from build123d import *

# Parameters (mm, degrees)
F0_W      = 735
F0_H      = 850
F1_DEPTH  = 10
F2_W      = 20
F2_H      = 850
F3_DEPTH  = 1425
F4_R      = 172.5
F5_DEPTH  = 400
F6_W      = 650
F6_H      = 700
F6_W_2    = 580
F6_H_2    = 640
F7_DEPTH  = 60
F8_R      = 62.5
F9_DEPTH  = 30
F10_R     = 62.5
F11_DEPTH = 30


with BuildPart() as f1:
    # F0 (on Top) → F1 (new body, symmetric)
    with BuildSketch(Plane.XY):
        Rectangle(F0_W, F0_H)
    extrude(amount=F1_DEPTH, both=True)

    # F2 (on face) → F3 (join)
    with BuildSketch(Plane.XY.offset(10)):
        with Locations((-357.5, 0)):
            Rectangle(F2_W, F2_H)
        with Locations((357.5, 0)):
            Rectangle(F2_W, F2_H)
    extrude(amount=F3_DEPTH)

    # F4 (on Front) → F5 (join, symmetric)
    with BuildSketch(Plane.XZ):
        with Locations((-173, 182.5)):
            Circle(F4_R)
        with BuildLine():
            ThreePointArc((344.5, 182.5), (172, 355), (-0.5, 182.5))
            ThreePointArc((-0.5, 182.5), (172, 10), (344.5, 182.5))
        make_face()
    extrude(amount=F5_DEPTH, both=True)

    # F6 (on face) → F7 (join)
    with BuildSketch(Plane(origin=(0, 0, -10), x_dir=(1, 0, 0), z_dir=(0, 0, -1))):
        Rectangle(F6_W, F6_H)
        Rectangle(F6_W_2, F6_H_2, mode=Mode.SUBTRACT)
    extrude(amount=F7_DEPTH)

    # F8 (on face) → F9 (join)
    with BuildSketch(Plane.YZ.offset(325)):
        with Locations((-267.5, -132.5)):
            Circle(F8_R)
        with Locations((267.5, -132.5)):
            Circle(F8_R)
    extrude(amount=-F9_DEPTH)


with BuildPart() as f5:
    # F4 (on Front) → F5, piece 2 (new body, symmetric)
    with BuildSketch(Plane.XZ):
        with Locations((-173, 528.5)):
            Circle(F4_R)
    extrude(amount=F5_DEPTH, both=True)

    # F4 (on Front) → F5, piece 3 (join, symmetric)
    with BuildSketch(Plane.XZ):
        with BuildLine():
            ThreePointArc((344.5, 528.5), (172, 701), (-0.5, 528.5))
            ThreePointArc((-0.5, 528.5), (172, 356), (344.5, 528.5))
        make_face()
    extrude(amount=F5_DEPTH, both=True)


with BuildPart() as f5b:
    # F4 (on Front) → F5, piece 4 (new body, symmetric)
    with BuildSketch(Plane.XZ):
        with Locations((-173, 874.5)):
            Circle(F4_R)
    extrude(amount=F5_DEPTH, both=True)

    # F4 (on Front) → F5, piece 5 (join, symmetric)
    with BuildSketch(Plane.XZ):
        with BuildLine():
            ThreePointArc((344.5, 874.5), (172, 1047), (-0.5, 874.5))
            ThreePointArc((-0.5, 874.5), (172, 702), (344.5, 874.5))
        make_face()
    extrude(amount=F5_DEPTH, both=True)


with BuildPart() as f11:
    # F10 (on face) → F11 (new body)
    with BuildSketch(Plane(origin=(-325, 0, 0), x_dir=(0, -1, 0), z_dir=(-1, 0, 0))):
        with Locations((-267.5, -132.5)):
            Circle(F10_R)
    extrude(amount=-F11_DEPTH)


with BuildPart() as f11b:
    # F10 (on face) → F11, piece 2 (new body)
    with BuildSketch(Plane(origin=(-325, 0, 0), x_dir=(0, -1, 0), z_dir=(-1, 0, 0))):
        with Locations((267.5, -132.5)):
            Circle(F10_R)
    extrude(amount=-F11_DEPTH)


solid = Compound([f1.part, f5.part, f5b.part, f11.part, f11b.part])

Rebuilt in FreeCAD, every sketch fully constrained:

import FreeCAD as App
import Part
import Sketcher
from FreeCAD import Vector
Q = App.Units.Quantity

doc = App.newDocument("Part")
body = doc.addObject("PartDesign::Body", "Body")
body.AllowCompound = True

# Sketch on XY plane
sketch1 = body.newObject("Sketcher::SketchObject", "Sketch")
sketch1.AttachmentSupport = (doc.getObject("XY_Plane"), [""])
sketch1.MapMode = "FlatFace"
sketch1.addGeometry([
    Part.LineSegment(Vector(-368, 425, 0), Vector(-368, -425, 0)),
    Part.LineSegment(Vector(-368, -425, 0), Vector(368, -425, 0)),
    Part.LineSegment(Vector(368, -425, 0), Vector(368, 425, 0)),
    Part.LineSegment(Vector(368, 425, 0), Vector(-368, 425, 0)),
], False)
sketch1.addConstraint([
    Sketcher.Constraint("Coincident", 0, 2, 1, 1),
    Sketcher.Constraint("Coincident", 1, 2, 2, 1),
    Sketcher.Constraint("Coincident", 2, 2, 3, 1),
    Sketcher.Constraint("Coincident", 3, 2, 0, 1),
    Sketcher.Constraint("Vertical", 0),
    Sketcher.Constraint("Horizontal", 1),
    Sketcher.Constraint("Vertical", 2),
    Sketcher.Constraint("Horizontal", 3),
    Sketcher.Constraint("Symmetric", 0, 2, 2, 2, -1, 1),
    Sketcher.Constraint("DistanceX", 1, 1, 1, 2, Q("735 mm")),
    Sketcher.Constraint("DistanceY", 0, 2, 0, 1, Q("850 mm")),
])
pad1 = body.newObject("PartDesign::Pad", "Pad")
pad1.Profile = sketch1
pad1.Length = 20
pad1.Midplane = True

# Sketch on XY plane
sketch2 = body.newObject("Sketcher::SketchObject", "Sketch001")
sketch2.AttachmentSupport = (doc.getObject("XY_Plane"), [""])
sketch2.MapMode = "FlatFace"
sketch2.AttachmentOffset = App.Placement(Vector(0, 0, 10), App.Rotation())
sketch2.addGeometry([
    Part.LineSegment(Vector(-368, 425, 0), Vector(-368, -425, 0)),  # 0
    Part.LineSegment(Vector(-368, -425, 0), Vector(-348, -425, 0)),  # 1
    Part.LineSegment(Vector(-348, -425, 0), Vector(-348, 425, 0)),  # 2
    Part.LineSegment(Vector(-348, 425, 0), Vector(-368, 425, 0)),  # 3
    Part.LineSegment(Vector(348, 425, 0), Vector(348, -425, 0)),  # 4
    Part.LineSegment(Vector(348, -425, 0), Vector(368, -425, 0)),  # 5
    Part.LineSegment(Vector(368, -425, 0), Vector(368, 425, 0)),  # 6
    Part.LineSegment(Vector(368, 425, 0), Vector(348, 425, 0)),  # 7
], False)
sketch2.addConstraint([
    Sketcher.Constraint("Coincident", 0, 2, 1, 1),
    Sketcher.Constraint("Coincident", 1, 2, 2, 1),
    Sketcher.Constraint("Coincident", 2, 2, 3, 1),
    Sketcher.Constraint("Coincident", 3, 2, 0, 1),
    Sketcher.Constraint("Coincident", 4, 2, 5, 1),
    Sketcher.Constraint("Coincident", 5, 2, 6, 1),
    Sketcher.Constraint("Coincident", 6, 2, 7, 1),
    Sketcher.Constraint("Coincident", 7, 2, 4, 1),
    Sketcher.Constraint("Vertical", 0),
    Sketcher.Constraint("Horizontal", 1),
    Sketcher.Constraint("Vertical", 2),
    Sketcher.Constraint("Horizontal", 3),
    Sketcher.Constraint("Vertical", 4),
    Sketcher.Constraint("Horizontal", 5),
    Sketcher.Constraint("Vertical", 6),
    Sketcher.Constraint("Horizontal", 7),
    Sketcher.Constraint("Symmetric", 2, 2, 4, 2, -1, 1),
    Sketcher.Constraint("Symmetric", 0, 2, 6, 2, -1, 1),
    Sketcher.Constraint("Horizontal", 1, 2, 4, 2),
    Sketcher.Constraint("DistanceX", 1, 1, 1, 2, Q("20 mm")),
    Sketcher.Constraint("DistanceY", 0, 2, 0, 1, Q("850 mm")),
    Sketcher.Constraint("DistanceX", 1, 2, 4, 2, Q("695 mm")),
])
pad2 = body.newObject("PartDesign::Pad", "Pad001")
pad2.Profile = sketch2
pad2.Length = 1425

# Sketch on XZ plane
sketch3 = body.newObject("Sketcher::SketchObject", "Sketch002")
sketch3.AttachmentSupport = (doc.getObject("XZ_Plane"), [""])
sketch3.MapMode = "FlatFace"
sketch3.addGeometry([
    Part.Circle(Vector(-173, 182, 0), Vector(0, 0, 1), 172),
    Part.Circle(Vector(172, 182, 0), Vector(0, 0, 1), 172),
], False)
sketch3.addConstraint([
    Sketcher.Constraint("Equal", 0, 1),
    Sketcher.Constraint("Horizontal", 0, 3, 1, 3),
    Sketcher.Constraint("Diameter", 0, Q("345 mm")),
    Sketcher.Constraint("DistanceX", 0, 3, -1, 1, Q("173 mm")),
    Sketcher.Constraint("DistanceX", -1, 1, 1, 3, Q("172 mm")),
    Sketcher.Constraint("DistanceY", -1, 1, 0, 3, Q("182.5 mm")),
])
pad3 = body.newObject("PartDesign::Pad", "Pad002")
pad3.Profile = sketch3
pad3.Length = 800
pad3.Midplane = True

# Sketch on XY plane
sketch4 = body.newObject("Sketcher::SketchObject", "Sketch003")
sketch4.AttachmentSupport = (doc.getObject("XY_Plane"), [""])
sketch4.MapMode = "FlatFace"
sketch4.AttachmentOffset = App.Placement(Vector(0, 0, -10), App.Rotation())
sketch4.addGeometry([
    Part.LineSegment(Vector(-325, -350, 0), Vector(-325, 350, 0)),  # 0
    Part.LineSegment(Vector(-325, 350, 0), Vector(325, 350, 0)),  # 1
    Part.LineSegment(Vector(325, 350, 0), Vector(325, -350, 0)),  # 2
    Part.LineSegment(Vector(325, -350, 0), Vector(-325, -350, 0)),  # 3
    Part.LineSegment(Vector(290, 320, 0), Vector(-290, 320, 0)),  # 4
    Part.LineSegment(Vector(-290, 320, 0), Vector(-290, -320, 0)),  # 5
    Part.LineSegment(Vector(-290, -320, 0), Vector(290, -320, 0)),  # 6
    Part.LineSegment(Vector(290, -320, 0), Vector(290, 320, 0)),  # 7
], False)
sketch4.addConstraint([
    Sketcher.Constraint("Coincident", 0, 2, 1, 1),
    Sketcher.Constraint("Coincident", 1, 2, 2, 1),
    Sketcher.Constraint("Coincident", 2, 2, 3, 1),
    Sketcher.Constraint("Coincident", 3, 2, 0, 1),
    Sketcher.Constraint("Coincident", 4, 2, 5, 1),
    Sketcher.Constraint("Coincident", 5, 2, 6, 1),
    Sketcher.Constraint("Coincident", 6, 2, 7, 1),
    Sketcher.Constraint("Coincident", 7, 2, 4, 1),
    Sketcher.Constraint("Vertical", 0),
    Sketcher.Constraint("Horizontal", 1),
    Sketcher.Constraint("Vertical", 2),
    Sketcher.Constraint("Horizontal", 3),
    Sketcher.Constraint("Horizontal", 4),
    Sketcher.Constraint("Vertical", 5),
    Sketcher.Constraint("Horizontal", 6),
    Sketcher.Constraint("Vertical", 7),
    Sketcher.Constraint("Symmetric", 0, 2, 2, 2, -1, 1),
    Sketcher.Constraint("Symmetric", 4, 2, 6, 2, -1, 1),
    Sketcher.Constraint("DistanceX", 1, 1, 1, 2, Q("650 mm")),
    Sketcher.Constraint("DistanceX", 4, 2, 4, 1, Q("580 mm")),
    Sketcher.Constraint("DistanceY", 0, 1, 0, 2, Q("700 mm")),
    Sketcher.Constraint("DistanceY", 5, 2, 5, 1, Q("640 mm")),
])
pad4 = body.newObject("PartDesign::Pad", "Pad003")
pad4.Profile = sketch4
pad4.Length = 60
pad4.Reversed = True

# Sketch on YZ plane
sketch5 = body.newObject("Sketcher::SketchObject", "Sketch004")
sketch5.AttachmentSupport = (doc.getObject("YZ_Plane"), [""])
sketch5.MapMode = "FlatFace"
sketch5.AttachmentOffset = App.Placement(Vector(0, 0, 325), App.Rotation())
sketch5.addGeometry([
    Part.Circle(Vector(-268, -132, 0), Vector(0, 0, 1), 62),
    Part.Circle(Vector(268, -132, 0), Vector(0, 0, 1), 62),
], False)
sketch5.addConstraint([
    Sketcher.Constraint("Equal", 0, 1),
    Sketcher.Constraint("Symmetric", 0, 3, 1, 3, -2),
    Sketcher.Constraint("Diameter", 0, Q("125 mm")),
    Sketcher.Constraint("DistanceX", 0, 3, 1, 3, Q("535 mm")),
    Sketcher.Constraint("DistanceY", 0, 3, -1, 1, Q("132.5 mm")),
])
pad5 = body.newObject("PartDesign::Pad", "Pad004")
pad5.Profile = sketch5
pad5.Length = 30
pad5.Reversed = True
body2 = doc.addObject("PartDesign::Body", "Body001")
body2.AllowCompound = True

# Sketch on XZ plane
sketch6 = body2.newObject("Sketcher::SketchObject", "Sketch005")
sketch6.AttachmentSupport = (doc.getObject("XZ_Plane001"), [""])
sketch6.MapMode = "FlatFace"
sketch6.addGeometry(Part.Circle(Vector(-173, 528, 0), Vector(0, 0, 1), 172), False)
sketch6.addConstraint([
    Sketcher.Constraint("Diameter", 0, Q("345 mm")),
    Sketcher.Constraint("DistanceX", 0, 3, -1, 1, Q("173 mm")),
    Sketcher.Constraint("DistanceY", -1, 1, 0, 3, Q("528.5 mm")),
])
pad6 = body2.newObject("PartDesign::Pad", "Pad005")
pad6.Profile = sketch6
pad6.Length = 800
pad6.Midplane = True

# Sketch on XZ plane
sketch7 = body2.newObject("Sketcher::SketchObject", "Sketch006")
sketch7.AttachmentSupport = (doc.getObject("XZ_Plane001"), [""])
sketch7.MapMode = "FlatFace"
sketch7.addGeometry(Part.Circle(Vector(172, 528, 0), Vector(0, 0, 1), 172), False)
sketch7.addConstraint([
    Sketcher.Constraint("Diameter", 0, Q("345 mm")),
    Sketcher.Constraint("DistanceX", -1, 1, 0, 3, Q("172 mm")),
    Sketcher.Constraint("DistanceY", -1, 1, 0, 3, Q("528.5 mm")),
])
pad7 = body2.newObject("PartDesign::Pad", "Pad006")
pad7.Profile = sketch7
pad7.Length = 800
pad7.Midplane = True
body3 = doc.addObject("PartDesign::Body", "Body002")
body3.AllowCompound = True

# Sketch on XZ plane
sketch8 = body3.newObject("Sketcher::SketchObject", "Sketch007")
sketch8.AttachmentSupport = (doc.getObject("XZ_Plane002"), [""])
sketch8.MapMode = "FlatFace"
sketch8.addGeometry(Part.Circle(Vector(-173, 874, 0), Vector(0, 0, 1), 172), False)
sketch8.addConstraint([
    Sketcher.Constraint("Diameter", 0, Q("345 mm")),
    Sketcher.Constraint("DistanceX", 0, 3, -1, 1, Q("173 mm")),
    Sketcher.Constraint("DistanceY", -1, 1, 0, 3, Q("874.5 mm")),
])
pad8 = body3.newObject("PartDesign::Pad", "Pad007")
pad8.Profile = sketch8
pad8.Length = 800
pad8.Midplane = True

# Sketch on XZ plane
sketch9 = body3.newObject("Sketcher::SketchObject", "Sketch008")
sketch9.AttachmentSupport = (doc.getObject("XZ_Plane002"), [""])
sketch9.MapMode = "FlatFace"
sketch9.addGeometry(Part.Circle(Vector(172, 874, 0), Vector(0, 0, 1), 172), False)
sketch9.addConstraint([
    Sketcher.Constraint("Diameter", 0, Q("345 mm")),
    Sketcher.Constraint("DistanceX", -1, 1, 0, 3, Q("172 mm")),
    Sketcher.Constraint("DistanceY", -1, 1, 0, 3, Q("874.5 mm")),
])
pad9 = body3.newObject("PartDesign::Pad", "Pad008")
pad9.Profile = sketch9
pad9.Length = 800
pad9.Midplane = True
body4 = doc.addObject("PartDesign::Body", "Body003")

# Sketch on YZ plane
sketch10 = body4.newObject("Sketcher::SketchObject", "Sketch009")
sketch10.AttachmentSupport = (doc.getObject("YZ_Plane003"), [""])
sketch10.MapMode = "FlatFace"
sketch10.AttachmentOffset = App.Placement(Vector(0, 0, -325), App.Rotation())
sketch10.addGeometry(Part.Circle(Vector(268, -132, 0), Vector(0, 0, 1), 62), False)
sketch10.addConstraint([
    Sketcher.Constraint("Diameter", 0, Q("125 mm")),
    Sketcher.Constraint("DistanceX", -1, 1, 0, 3, Q("267.5 mm")),
    Sketcher.Constraint("DistanceY", 0, 3, -1, 1, Q("132.5 mm")),
])
pad10 = body4.newObject("PartDesign::Pad", "Pad009")
pad10.Profile = sketch10
pad10.Length = 30
body5 = doc.addObject("PartDesign::Body", "Body004")

# Sketch on YZ plane
sketch11 = body5.newObject("Sketcher::SketchObject", "Sketch010")
sketch11.AttachmentSupport = (doc.getObject("YZ_Plane004"), [""])
sketch11.MapMode = "FlatFace"
sketch11.AttachmentOffset = App.Placement(Vector(0, 0, -325), App.Rotation())
sketch11.addGeometry(Part.Circle(Vector(-268, -132, 0), Vector(0, 0, 1), 62), False)
sketch11.addConstraint([
    Sketcher.Constraint("Diameter", 0, Q("125 mm")),
    Sketcher.Constraint("DistanceX", 0, 3, -1, 1, Q("267.5 mm")),
    Sketcher.Constraint("DistanceY", 0, 3, -1, 1, Q("132.5 mm")),
])
pad11 = body5.newObject("PartDesign::Pad", "Pad010")
pad11.Profile = sketch11
pad11.Length = 30

doc.recompute()
